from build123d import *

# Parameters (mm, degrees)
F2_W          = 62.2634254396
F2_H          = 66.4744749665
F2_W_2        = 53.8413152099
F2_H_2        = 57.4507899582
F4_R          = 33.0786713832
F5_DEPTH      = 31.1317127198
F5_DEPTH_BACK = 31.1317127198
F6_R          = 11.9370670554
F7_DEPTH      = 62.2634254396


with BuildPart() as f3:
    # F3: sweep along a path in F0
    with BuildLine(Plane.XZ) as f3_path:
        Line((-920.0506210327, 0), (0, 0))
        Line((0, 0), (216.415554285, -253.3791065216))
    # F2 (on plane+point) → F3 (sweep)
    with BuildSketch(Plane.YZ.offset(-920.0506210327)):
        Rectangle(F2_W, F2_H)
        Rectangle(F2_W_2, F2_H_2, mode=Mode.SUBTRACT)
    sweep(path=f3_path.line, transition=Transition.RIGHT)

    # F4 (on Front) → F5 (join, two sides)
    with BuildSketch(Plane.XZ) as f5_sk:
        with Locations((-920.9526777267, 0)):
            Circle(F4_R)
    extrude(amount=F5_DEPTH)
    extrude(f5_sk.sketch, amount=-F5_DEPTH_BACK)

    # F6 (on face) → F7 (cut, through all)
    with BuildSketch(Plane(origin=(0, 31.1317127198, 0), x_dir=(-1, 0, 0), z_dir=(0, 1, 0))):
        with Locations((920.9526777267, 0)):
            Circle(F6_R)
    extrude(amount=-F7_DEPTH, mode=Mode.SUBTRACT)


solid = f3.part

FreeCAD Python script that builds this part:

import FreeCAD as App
import Part
import Sketcher

V = App.Vector


def add_polygon(sketch, points):
    """Adds a closed chain of lines whose ends are joined by coincident constraints."""
    first, n = sketch.GeometryCount, len(points)
    for a, b in zip(points, points[1:] + points[:1]):
        sketch.addGeometry(Part.LineSegment(App.Vector(*a, 0), App.Vector(*b, 0)), False)
    for i in range(n):
        sketch.addConstraint(Sketcher.Constraint("Coincident", first + i, 2, first + (i + 1) % n, 1))

doc = App.newDocument("Part")
params = doc.addObject("Spreadsheet::Sheet", "Params")
for row, (alias, value) in enumerate([
    ("pad1_length", "31.131713 mm"),
    ("pad1_length2", "31.131713 mm"),
], start=1):
    params.set(f"A{row}", alias)
    params.set(f"B{row}", "=" + value)
    params.setAlias(f"B{row}", alias)

body = doc.addObject("PartDesign::Body", "Body")

# Sketch on YZ plane
sketch1 = body.newObject("Sketcher::SketchObject", "Sketch")
sketch1.AttachmentSupport = (doc.getObject("YZ_Plane"), [""])
sketch1.MapMode = "FlatFace"
sketch1.AttachmentOffset = App.Placement(V(0, 0, -920.050621), App.Rotation())
add_polygon(sketch1, [(-31.131713, 33.237237), (-31.131713, -33.237237), (31.131713, -33.237237), (31.131713, 33.237237)])  # lines 0-3
add_polygon(sketch1, [(26.920658, -28.725395), (-26.920658, -28.725395), (-26.920658, 28.725395), (26.920658, 28.725395)])  # lines 4-7
sketch1.addConstraint(Sketcher.Constraint("Vertical", 0))
sketch1.addConstraint(Sketcher.Constraint("Horizontal", 1))
sketch1.addConstraint(Sketcher.Constraint("Vertical", 2))
sketch1.addConstraint(Sketcher.Constraint("Horizontal", 3))
sketch1.addConstraint(Sketcher.Constraint("Horizontal", 4))
sketch1.addConstraint(Sketcher.Constraint("Vertical", 5))
sketch1.addConstraint(Sketcher.Constraint("Horizontal", 6))
sketch1.addConstraint(Sketcher.Constraint("Vertical", 7))
sketch1.addConstraint(Sketcher.Constraint("Symmetric", 0, 2, 2, 2, -1, 1))
sketch1.addConstraint(Sketcher.Constraint("Symmetric", 4, 2, 6, 2, -1, 1))
sketch1.addConstraint(Sketcher.Constraint("DistanceY", 5, 1, 5, 2, 57.45079))
sketch1.addConstraint(Sketcher.Constraint("DistanceX", 1, 1, 1, 2, 62.263425))
sketch1.addConstraint(Sketcher.Constraint("DistanceX", 4, 2, 4, 1, 53.841315))
sketch1.addConstraint(Sketcher.Constraint("DistanceY", 0, 2, 0, 1, 66.474475))

# Sketch on XZ plane
sketch2 = body.newObject("Sketcher::SketchObject", "Sketch001")
sketch2.AttachmentSupport = (doc.getObject("XZ_Plane"), [""])
sketch2.MapMode = "FlatFace"
sketch2.addGeometry(Part.LineSegment(V(-920.050621, 0, 0), V(0, 0, 0)), False)
sketch2.addGeometry(Part.LineSegment(V(0, 0, 0), V(216.415554, -253.379107, 0)), False)
sketch2.addConstraint(Sketcher.Constraint("Coincident", 0, 2, 1, 1))
sketch2.addConstraint(Sketcher.Constraint("Horizontal", 0))
sketch2.addConstraint(Sketcher.Constraint("Coincident", 0, 2, -1, 1))
sketch2.addConstraint(Sketcher.Constraint("DistanceX", 0, 1, 0, 2, 920.050621))
sketch2.addConstraint(Sketcher.Constraint("Distance", 1, 333.221644))
sketch2.addConstraint(Sketcher.Constraint("DistanceX", -1, 1, 1, 2, 216.415554))
doc.recompute()

additivepipe = body.newObject("PartDesign::AdditivePipe", "AdditivePipe")
additivepipe.Profile = sketch1
additivepipe.Spine = (sketch2, ["Edge1", "Edge2"])
additivepipe.Transition = "Right corner"

# Sketch on XZ plane
sketch3 = body.newObject("Sketcher::SketchObject", "Sketch002")
sketch3.AttachmentSupport = (doc.getObject("XZ_Plane"), [""])
sketch3.MapMode = "FlatFace"
sketch3.addGeometry(Part.Circle(V(-920.952678, 0, 0), V(0, 0, 1), 33.078671), False)
sketch3.addConstraint(Sketcher.Constraint("PointOnObject", 0, 3, -1))
sketch3.addConstraint(Sketcher.Constraint("Diameter", 0, 66.157343))
sketch3.addConstraint(Sketcher.Constraint("DistanceX", 0, 3, -1, 1, 920.952678))
pad1 = body.newObject("PartDesign::Pad", "Pad")
pad1.Profile = sketch3
pad1.Type = "TwoLengths"
pad1.setExpression("Length", "Params.pad1_length")
pad1.setExpression("Length2", "Params.pad1_length2")

# Sketch on XZ plane
sketch4 = body.newObject("Sketcher::SketchObject", "Sketch003")
sketch4.AttachmentSupport = (doc.getObject("XZ_Plane"), [""])
sketch4.MapMode = "FlatFace"
sketch4.AttachmentOffset = App.Placement(V(0, 0, -31.131713), App.Rotation())
sketch4.addGeometry(Part.Circle(V(-920.952678, 0, 0), V(0, 0, 1), 11.937067), False)
sketch4.addConstraint(Sketcher.Constraint("PointOnObject", 0, 3, -1))
sketch4.addConstraint(Sketcher.Constraint("Diameter", 0, 23.874134))
sketch4.addConstraint(Sketcher.Constraint("DistanceX", 0, 3, -1, 1, 920.952678))
pocket1 = body.newObject("PartDesign::Pocket", "Pocket")
pocket1.Profile = sketch4
pocket1.Type = "ThroughAll"
pocket1.Reversed = True

doc.recompute()
